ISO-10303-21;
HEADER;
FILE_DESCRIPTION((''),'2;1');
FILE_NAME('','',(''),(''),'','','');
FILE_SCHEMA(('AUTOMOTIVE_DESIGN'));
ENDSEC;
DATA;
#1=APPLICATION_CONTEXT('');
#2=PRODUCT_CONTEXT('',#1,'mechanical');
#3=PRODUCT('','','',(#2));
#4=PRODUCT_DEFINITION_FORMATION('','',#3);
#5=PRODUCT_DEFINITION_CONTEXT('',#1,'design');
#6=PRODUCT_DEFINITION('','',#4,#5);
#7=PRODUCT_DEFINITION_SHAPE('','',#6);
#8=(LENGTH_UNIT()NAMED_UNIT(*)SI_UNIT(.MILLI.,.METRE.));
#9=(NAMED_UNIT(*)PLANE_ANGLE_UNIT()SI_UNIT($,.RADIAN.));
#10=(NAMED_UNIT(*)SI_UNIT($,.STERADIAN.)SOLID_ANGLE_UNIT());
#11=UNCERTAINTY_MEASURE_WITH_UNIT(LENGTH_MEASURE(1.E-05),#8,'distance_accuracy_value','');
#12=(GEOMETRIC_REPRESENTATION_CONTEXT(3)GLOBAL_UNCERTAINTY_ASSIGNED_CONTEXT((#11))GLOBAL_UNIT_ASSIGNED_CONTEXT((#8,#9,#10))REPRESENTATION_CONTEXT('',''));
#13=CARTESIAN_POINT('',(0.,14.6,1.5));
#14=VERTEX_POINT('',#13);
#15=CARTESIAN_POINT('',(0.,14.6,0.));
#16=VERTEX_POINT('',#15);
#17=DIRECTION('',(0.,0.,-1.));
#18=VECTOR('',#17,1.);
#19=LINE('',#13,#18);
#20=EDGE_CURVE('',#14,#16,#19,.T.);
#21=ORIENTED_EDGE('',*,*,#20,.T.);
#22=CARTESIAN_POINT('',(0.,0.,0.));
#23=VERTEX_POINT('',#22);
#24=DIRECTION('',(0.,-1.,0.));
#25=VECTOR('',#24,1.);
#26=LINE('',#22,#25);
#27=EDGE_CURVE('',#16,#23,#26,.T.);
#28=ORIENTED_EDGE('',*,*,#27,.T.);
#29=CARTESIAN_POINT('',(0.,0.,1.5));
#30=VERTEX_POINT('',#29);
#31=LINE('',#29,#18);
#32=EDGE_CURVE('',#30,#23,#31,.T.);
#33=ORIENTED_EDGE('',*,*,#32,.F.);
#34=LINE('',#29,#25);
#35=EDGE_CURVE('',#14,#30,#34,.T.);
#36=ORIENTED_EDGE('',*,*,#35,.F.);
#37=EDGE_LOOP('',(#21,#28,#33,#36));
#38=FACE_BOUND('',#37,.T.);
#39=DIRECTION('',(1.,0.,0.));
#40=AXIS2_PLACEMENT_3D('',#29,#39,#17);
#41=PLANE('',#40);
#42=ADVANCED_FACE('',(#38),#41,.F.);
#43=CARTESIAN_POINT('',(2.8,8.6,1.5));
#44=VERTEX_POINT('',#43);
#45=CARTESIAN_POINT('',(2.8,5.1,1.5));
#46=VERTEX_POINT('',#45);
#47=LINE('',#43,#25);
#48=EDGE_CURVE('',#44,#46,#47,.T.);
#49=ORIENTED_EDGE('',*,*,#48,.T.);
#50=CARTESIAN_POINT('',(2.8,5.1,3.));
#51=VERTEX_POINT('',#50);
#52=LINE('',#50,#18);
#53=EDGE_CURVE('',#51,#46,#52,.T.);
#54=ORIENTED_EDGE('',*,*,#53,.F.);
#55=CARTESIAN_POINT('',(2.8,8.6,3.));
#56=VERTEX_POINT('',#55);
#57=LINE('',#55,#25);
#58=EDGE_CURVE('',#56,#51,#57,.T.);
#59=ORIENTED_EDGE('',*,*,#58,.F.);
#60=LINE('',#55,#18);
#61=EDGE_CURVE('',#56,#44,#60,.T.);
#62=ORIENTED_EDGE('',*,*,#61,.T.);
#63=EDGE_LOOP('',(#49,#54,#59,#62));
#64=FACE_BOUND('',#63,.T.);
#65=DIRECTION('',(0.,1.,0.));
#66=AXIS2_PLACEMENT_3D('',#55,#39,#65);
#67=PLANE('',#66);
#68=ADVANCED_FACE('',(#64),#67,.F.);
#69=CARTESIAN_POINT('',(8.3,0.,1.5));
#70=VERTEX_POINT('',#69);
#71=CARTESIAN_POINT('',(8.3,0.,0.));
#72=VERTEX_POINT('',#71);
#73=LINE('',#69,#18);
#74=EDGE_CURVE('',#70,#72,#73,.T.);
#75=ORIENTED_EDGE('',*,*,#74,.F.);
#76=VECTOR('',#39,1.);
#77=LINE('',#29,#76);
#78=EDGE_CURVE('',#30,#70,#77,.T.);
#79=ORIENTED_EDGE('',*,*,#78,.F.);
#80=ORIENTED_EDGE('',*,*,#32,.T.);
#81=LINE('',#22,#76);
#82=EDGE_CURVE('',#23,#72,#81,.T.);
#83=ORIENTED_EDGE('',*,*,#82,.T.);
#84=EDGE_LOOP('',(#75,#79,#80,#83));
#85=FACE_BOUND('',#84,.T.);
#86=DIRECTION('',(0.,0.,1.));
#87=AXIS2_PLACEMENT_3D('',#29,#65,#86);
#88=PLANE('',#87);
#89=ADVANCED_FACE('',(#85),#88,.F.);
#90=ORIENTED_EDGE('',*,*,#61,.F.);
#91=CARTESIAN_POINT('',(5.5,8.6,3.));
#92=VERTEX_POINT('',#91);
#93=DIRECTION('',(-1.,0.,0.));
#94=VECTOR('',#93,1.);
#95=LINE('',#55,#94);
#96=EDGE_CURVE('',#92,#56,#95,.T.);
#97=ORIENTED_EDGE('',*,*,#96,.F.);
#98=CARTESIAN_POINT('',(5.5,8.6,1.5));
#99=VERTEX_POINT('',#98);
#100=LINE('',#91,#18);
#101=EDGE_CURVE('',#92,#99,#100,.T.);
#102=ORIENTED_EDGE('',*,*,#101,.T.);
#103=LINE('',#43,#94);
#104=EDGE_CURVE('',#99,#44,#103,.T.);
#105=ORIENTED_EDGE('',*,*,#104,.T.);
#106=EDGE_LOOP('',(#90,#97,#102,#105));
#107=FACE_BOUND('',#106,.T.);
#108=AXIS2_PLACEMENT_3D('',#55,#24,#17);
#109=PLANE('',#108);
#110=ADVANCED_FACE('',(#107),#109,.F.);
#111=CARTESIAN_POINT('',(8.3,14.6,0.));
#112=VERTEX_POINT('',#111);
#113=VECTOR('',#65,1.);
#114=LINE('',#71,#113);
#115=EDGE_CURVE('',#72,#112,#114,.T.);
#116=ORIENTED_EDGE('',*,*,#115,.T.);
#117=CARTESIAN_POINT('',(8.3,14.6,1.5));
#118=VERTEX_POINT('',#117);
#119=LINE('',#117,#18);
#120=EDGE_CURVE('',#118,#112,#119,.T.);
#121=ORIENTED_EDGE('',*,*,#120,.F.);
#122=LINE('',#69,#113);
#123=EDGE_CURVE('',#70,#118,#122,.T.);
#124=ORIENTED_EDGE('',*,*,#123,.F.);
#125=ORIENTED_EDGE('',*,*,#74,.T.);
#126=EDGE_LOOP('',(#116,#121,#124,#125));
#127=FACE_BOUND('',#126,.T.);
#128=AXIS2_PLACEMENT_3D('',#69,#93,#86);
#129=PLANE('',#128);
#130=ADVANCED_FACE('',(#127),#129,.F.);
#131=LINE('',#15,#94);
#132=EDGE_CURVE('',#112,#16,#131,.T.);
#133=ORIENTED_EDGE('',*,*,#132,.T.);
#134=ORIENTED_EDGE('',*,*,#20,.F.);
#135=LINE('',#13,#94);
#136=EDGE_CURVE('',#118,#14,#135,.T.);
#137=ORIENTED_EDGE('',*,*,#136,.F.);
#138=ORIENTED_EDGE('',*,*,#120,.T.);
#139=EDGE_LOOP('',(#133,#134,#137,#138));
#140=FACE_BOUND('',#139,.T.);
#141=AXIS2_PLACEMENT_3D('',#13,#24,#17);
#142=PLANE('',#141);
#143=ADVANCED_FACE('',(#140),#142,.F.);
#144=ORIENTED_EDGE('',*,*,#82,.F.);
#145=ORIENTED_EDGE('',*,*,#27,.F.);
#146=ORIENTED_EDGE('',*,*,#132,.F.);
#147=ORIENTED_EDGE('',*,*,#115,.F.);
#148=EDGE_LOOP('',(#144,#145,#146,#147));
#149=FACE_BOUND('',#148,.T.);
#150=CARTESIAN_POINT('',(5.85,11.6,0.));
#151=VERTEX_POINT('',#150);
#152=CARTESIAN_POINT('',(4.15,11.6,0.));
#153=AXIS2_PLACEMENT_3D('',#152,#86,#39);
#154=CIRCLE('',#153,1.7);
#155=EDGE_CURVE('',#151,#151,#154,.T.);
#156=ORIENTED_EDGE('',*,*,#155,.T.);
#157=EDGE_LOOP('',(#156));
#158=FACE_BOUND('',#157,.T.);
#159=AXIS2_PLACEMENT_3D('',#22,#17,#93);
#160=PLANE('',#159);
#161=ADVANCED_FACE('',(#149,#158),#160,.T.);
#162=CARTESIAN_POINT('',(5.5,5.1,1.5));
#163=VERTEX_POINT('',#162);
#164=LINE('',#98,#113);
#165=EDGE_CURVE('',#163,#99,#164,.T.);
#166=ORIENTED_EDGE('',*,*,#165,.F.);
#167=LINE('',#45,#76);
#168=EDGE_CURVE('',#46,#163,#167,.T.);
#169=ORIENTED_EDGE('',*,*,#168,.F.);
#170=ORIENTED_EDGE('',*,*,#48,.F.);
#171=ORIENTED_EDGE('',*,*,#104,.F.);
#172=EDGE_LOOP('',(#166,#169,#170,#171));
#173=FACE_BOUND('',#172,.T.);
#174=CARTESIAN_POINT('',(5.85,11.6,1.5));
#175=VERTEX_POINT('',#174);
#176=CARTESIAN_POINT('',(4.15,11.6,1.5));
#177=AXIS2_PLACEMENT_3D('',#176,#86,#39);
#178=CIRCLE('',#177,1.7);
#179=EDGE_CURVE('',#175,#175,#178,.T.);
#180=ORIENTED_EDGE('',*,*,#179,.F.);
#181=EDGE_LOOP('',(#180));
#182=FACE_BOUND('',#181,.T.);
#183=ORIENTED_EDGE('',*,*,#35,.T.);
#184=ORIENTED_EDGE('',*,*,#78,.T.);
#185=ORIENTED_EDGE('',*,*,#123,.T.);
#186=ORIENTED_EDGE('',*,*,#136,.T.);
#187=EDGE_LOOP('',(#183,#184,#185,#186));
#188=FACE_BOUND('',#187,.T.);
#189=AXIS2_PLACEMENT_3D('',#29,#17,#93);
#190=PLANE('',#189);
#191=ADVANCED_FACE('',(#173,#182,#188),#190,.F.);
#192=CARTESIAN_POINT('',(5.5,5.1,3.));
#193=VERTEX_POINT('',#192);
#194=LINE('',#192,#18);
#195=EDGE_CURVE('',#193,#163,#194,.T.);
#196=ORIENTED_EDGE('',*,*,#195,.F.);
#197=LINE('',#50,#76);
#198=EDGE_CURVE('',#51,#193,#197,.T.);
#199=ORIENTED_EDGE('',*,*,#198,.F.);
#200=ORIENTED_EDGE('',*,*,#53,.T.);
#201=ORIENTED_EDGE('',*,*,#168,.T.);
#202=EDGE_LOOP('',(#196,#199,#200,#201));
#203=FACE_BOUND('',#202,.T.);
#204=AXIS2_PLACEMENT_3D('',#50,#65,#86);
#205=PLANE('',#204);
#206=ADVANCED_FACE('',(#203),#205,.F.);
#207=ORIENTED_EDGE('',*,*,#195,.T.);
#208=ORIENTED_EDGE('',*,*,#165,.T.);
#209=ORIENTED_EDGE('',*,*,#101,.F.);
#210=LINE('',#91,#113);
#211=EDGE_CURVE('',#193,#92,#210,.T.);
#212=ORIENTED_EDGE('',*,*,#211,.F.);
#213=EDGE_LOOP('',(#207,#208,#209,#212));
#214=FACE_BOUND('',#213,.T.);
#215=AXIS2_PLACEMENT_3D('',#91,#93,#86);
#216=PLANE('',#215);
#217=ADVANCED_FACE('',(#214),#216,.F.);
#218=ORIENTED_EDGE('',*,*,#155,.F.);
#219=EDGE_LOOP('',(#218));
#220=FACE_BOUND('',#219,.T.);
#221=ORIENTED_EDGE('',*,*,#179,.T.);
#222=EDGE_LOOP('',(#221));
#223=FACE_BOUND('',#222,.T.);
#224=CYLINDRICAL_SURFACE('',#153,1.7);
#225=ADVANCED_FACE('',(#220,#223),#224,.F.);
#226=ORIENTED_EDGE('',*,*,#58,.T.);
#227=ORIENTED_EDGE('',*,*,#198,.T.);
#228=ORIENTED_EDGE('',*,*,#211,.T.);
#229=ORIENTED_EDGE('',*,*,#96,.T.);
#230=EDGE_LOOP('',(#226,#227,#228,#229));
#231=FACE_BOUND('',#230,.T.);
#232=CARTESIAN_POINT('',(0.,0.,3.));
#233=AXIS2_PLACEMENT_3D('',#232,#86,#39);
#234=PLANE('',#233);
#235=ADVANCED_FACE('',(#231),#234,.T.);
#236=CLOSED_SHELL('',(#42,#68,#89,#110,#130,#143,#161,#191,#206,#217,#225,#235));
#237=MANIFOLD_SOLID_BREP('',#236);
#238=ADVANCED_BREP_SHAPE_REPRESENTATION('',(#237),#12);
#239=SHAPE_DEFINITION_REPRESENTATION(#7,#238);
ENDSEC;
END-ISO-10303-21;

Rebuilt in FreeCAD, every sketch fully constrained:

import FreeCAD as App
import Part
import Sketcher
Q = App.Units.Quantity

doc = App.newDocument("Part")
params = doc.addObject("Spreadsheet::Sheet", "Params")
for row, (alias, value) in enumerate([
    ("sketch1_width", "8.3 mm"),
    ("sketch1_height", "14.6 mm"),
    ("pad1_length", "1.5 mm"),
    ("sketch2_diameter", "3.4 mm"),
    ("pocket1_length", "1.5 mm"),
    ("sketch3_width", "2.7 mm"),
    ("sketch3_height", "3.5 mm"),
    ("pad2_length", "1.5 mm"),
], start=1):
    params.set(f"A{row}", alias)
    params.set(f"B{row}", "=" + value)
    params.setAlias(f"B{row}", alias)

body = doc.addObject("PartDesign::Body", "Body")

sketch1 = body.newObject("Sketcher::SketchObject", "Sketch")
sketch1.AttachmentSupport = (doc.getObject("XY_Plane"), [""])
sketch1.MapMode = "FlatFace"
sketch1.addGeometry([
    Part.LineSegment(App.Vector(0, 14.6, 0), App.Vector(0, 0, 0)),
    Part.LineSegment(App.Vector(0, 0, 0), App.Vector(8.3, 0, 0)),
    Part.LineSegment(App.Vector(8.3, 0, 0), App.Vector(8.3, 14.6, 0)),
    Part.LineSegment(App.Vector(8.3, 14.6, 0), App.Vector(0, 14.6, 0)),
], False)
sketch1.addConstraint([
    Sketcher.Constraint("Coincident", 0, 2, 1, 1),
    Sketcher.Constraint("Coincident", 1, 2, 2, 1),
    Sketcher.Constraint("Coincident", 2, 2, 3, 1),
    Sketcher.Constraint("Coincident", 3, 2, 0, 1),
    Sketcher.Constraint("Vertical", 0),
    Sketcher.Constraint("Horizontal", 1),
    Sketcher.Constraint("Vertical", 2),
    Sketcher.Constraint("Horizontal", 3),
    Sketcher.Constraint("Coincident", 0, 2, -1, 1),
    Sketcher.Constraint("DistanceX", 1, 1, 1, 2, Q("8.3 mm")),
    Sketcher.Constraint("DistanceY", 0, 2, 0, 1, Q("14.6 mm")),
])
sketch1.setExpression("Constraints[9]", "Params.sketch1_width")
sketch1.setExpression("Constraints[10]", "Params.sketch1_height")
pad1 = body.newObject("PartDesign::Pad", "Pad")
pad1.Profile = sketch1
pad1.setExpression("Length", "Params.pad1_length")

sketch2 = body.newObject("Sketcher::SketchObject", "Sketch001")
sketch2.AttachmentSupport = (doc.getObject("XY_Plane"), [""])
sketch2.MapMode = "FlatFace"
sketch2.AttachmentOffset = App.Placement(App.Vector(0, 0, 1.5), App.Rotation())
sketch2.addGeometry(Part.Circle(App.Vector(4.15, 11.6, 0), App.Vector(0, 0, 1), 1.7), False)
sketch2.addConstraint([
    Sketcher.Constraint("Diameter", 0, Q("3.4 mm")),
    Sketcher.Constraint("DistanceY", -1, 1, 0, 3, Q("11.6 mm")),
    Sketcher.Constraint("DistanceX", -1, 1, 0, 3, Q("4.15 mm")),
])
sketch2.setExpression("Constraints[0]", "Params.sketch2_diameter")
pocket1 = body.newObject("PartDesign::Pocket", "Pocket")
pocket1.Profile = sketch2
pocket1.setExpression("Length", "Params.pocket1_length")

sketch3 = body.newObject("Sketcher::SketchObject", "Sketch002")
sketch3.AttachmentSupport = (doc.getObject("XY_Plane"), [""])
sketch3.MapMode = "FlatFace"
sketch3.AttachmentOffset = App.Placement(App.Vector(0, 0, 1.5), App.Rotation())
sketch3.addGeometry([
    Part.LineSegment(App.Vector(2.8, 8.6, 0), App.Vector(2.8, 5.1, 0)),
    Part.LineSegment(App.Vector(2.8, 5.1, 0), App.Vector(5.5, 5.1, 0)),
    Part.LineSegment(App.Vector(5.5, 5.1, 0), App.Vector(5.5, 8.6, 0)),
    Part.LineSegment(App.Vector(5.5, 8.6, 0), App.Vector(2.8, 8.6, 0)),
], False)
sketch3.addConstraint([
    Sketcher.Constraint("Coincident", 0, 2, 1, 1),
    Sketcher.Constraint("Coincident", 1, 2, 2, 1),
    Sketcher.Constraint("Coincident", 2, 2, 3, 1),
    Sketcher.Constraint("Coincident", 3, 2, 0, 1),
    Sketcher.Constraint("Vertical", 0),
    Sketcher.Constraint("Horizontal", 1),
    Sketcher.Constraint("Vertical", 2),
    Sketcher.Constraint("Horizontal", 3),
    Sketcher.Constraint("DistanceX", 1, 1, 1, 2, Q("2.7 mm")),
    Sketcher.Constraint("DistanceY", 0, 2, 0, 1, Q("3.5 mm")),
    Sketcher.Constraint("DistanceX", -1, 1, 0, 2, Q("2.8 mm")),
    Sketcher.Constraint("DistanceY", -1, 1, 0, 2, Q("5.1 mm")),
])
sketch3.setExpression("Constraints[8]", "Params.sketch3_width")
sketch3.setExpression("Constraints[9]", "Params.sketch3_height")
pad2 = body.newObject("PartDesign::Pad", "Pad001")
pad2.Profile = sketch3
pad2.setExpression("Length", "Params.pad2_length")

doc.recompute()
